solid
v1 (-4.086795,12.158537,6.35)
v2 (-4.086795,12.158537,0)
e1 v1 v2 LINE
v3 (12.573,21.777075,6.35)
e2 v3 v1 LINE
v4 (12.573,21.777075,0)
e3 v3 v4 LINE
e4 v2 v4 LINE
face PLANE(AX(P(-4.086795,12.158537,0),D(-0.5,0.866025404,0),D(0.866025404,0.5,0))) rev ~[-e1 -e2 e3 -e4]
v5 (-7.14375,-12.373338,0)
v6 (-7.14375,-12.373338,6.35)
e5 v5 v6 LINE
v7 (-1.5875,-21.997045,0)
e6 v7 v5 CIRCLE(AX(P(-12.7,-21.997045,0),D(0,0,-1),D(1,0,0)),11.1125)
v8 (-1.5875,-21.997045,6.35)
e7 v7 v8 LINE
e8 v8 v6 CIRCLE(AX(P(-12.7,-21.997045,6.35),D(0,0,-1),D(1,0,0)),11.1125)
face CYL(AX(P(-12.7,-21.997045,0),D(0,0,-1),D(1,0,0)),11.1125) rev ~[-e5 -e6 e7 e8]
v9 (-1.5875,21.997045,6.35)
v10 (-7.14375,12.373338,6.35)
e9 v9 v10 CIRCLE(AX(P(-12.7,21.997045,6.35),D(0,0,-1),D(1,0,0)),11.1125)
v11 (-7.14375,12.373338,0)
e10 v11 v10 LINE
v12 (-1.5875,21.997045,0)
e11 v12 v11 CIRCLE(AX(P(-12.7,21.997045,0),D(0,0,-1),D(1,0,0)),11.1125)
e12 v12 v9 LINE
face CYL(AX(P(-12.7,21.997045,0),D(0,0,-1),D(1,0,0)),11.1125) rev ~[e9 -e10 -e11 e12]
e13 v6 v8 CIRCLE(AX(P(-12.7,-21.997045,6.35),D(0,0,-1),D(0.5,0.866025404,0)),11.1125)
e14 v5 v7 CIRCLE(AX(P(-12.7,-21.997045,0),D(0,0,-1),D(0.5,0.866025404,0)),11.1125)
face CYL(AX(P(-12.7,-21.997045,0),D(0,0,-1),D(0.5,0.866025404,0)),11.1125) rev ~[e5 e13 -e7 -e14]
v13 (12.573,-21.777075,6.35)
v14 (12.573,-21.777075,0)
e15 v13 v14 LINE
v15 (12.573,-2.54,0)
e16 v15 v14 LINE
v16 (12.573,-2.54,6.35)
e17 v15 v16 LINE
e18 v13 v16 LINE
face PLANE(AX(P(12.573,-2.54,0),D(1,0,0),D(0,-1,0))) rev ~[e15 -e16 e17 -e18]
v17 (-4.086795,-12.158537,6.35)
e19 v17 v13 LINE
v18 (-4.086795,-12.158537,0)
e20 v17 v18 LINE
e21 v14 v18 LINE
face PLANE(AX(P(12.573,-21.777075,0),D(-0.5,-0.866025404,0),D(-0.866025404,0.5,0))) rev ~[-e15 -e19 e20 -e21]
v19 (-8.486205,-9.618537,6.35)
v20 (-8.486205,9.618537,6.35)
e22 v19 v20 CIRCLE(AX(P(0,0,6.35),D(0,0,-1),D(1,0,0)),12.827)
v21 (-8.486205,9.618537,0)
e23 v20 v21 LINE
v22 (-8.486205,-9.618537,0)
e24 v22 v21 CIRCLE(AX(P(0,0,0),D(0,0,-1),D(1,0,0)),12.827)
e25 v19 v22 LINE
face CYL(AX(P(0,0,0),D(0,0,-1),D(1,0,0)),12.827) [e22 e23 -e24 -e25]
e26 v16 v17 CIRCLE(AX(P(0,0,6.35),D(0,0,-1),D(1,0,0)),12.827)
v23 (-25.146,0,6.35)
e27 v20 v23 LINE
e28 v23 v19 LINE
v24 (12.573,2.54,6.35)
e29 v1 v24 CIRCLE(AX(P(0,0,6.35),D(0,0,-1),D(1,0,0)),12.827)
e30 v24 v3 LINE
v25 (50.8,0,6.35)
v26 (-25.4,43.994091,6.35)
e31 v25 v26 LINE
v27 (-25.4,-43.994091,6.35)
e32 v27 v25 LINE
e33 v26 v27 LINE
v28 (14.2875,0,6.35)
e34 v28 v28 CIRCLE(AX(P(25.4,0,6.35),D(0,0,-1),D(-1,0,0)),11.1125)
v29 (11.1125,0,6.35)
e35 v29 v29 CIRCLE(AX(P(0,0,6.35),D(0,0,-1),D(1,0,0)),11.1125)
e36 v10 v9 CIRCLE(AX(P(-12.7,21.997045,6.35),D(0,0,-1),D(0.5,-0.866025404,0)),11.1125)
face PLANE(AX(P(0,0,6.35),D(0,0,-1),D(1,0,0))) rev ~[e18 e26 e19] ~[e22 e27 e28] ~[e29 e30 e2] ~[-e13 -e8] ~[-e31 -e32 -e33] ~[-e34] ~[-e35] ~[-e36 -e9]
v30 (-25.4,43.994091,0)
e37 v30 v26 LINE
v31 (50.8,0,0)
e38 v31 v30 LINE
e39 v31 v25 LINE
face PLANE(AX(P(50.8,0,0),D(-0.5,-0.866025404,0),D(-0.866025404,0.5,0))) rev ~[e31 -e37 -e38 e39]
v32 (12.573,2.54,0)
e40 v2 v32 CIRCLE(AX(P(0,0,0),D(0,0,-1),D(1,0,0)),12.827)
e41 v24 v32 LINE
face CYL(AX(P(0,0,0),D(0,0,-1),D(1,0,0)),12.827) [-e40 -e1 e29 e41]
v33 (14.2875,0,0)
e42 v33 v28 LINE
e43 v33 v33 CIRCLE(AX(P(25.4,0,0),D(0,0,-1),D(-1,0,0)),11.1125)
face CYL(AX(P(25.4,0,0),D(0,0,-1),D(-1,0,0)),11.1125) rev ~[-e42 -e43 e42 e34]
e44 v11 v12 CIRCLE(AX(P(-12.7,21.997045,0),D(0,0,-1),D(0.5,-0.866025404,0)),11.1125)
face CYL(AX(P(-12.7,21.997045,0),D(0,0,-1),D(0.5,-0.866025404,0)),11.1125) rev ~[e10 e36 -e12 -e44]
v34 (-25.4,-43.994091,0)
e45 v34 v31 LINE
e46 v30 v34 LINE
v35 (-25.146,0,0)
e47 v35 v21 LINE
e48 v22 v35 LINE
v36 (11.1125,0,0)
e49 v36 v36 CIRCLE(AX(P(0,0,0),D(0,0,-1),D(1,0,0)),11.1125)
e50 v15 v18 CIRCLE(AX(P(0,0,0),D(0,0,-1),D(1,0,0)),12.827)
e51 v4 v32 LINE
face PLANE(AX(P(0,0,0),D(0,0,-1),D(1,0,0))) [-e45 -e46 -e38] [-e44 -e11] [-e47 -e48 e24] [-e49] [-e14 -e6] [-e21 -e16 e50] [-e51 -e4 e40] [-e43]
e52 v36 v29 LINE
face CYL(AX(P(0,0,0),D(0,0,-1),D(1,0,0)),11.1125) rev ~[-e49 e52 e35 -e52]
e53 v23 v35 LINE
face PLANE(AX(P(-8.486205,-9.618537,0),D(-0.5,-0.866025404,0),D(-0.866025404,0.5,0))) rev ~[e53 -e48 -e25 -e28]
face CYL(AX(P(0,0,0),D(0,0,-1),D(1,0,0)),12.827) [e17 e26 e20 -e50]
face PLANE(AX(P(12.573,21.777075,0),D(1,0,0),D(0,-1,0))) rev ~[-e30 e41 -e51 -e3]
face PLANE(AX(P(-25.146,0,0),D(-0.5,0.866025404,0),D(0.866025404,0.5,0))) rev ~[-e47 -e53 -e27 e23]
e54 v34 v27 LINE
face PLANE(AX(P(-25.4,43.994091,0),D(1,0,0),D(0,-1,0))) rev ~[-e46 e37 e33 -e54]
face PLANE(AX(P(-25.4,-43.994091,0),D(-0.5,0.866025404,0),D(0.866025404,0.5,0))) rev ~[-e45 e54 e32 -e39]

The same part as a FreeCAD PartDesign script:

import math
import FreeCAD as App
import Part
import Sketcher
Q = App.Units.Quantity

doc = App.newDocument("Part")
body = doc.addObject("PartDesign::Body", "Body")

# Sketch on XY plane
sketch1 = body.newObject("Sketcher::SketchObject", "Sketch")
sketch1.AttachmentSupport = (doc.getObject("XY_Plane"), [""])
sketch1.MapMode = "FlatFace"
sketch1.addGeometry([
    Part.LineSegment(App.Vector(51, 0, 0), App.Vector(-25, 44, 0)),  # 0
    Part.LineSegment(App.Vector(-25, 44, 0), App.Vector(-25, -44, 0)),  # 1
    Part.LineSegment(App.Vector(-25, -44, 0), App.Vector(51, 0, 0)),  # 2
    Part.ArcOfCircle(Part.Circle(App.Vector(-13, -22, 0), App.Vector(0, 0, 1), 11), math.radians(0), math.radians(60)),  # 3
    Part.ArcOfCircle(Part.Circle(App.Vector(-13, -22, 0), App.Vector(0, 0, 1), 11), math.radians(60), math.radians(360)),  # 4
    Part.ArcOfCircle(Part.Circle(App.Vector(0, 0, 0), App.Vector(0, 0, 1), 11), math.radians(0), math.radians(120)),  # 5
    Part.ArcOfCircle(Part.Circle(App.Vector(0, 0, 0), App.Vector(0, 0, 1), 11), math.radians(-120), math.radians(0)),  # 6
    Part.ArcOfCircle(Part.Circle(App.Vector(0, 0, 0), App.Vector(0, 0, 1), 11), math.radians(120), math.radians(240)),  # 7
    Part.Circle(App.Vector(25, 0, 0), App.Vector(0, 0, 1), 11),  # 8
    Part.ArcOfCircle(Part.Circle(App.Vector(-13, 22, 0), App.Vector(0, 0, 1), 11), math.radians(0), math.radians(300)),  # 9
    Part.ArcOfCircle(Part.Circle(App.Vector(-13, 22, 0), App.Vector(0, 0, 1), 11), math.radians(-60), math.radians(0)),  # 10
], False)
sketch1.addConstraint([
    Sketcher.Constraint("Coincident", 0, 2, 1, 1),
    Sketcher.Constraint("Coincident", 1, 2, 2, 1),
    Sketcher.Constraint("Coincident", 2, 2, 0, 1),
    Sketcher.Constraint("Tangent", 3, 1, 4, 2),
    Sketcher.Constraint("Coincident", 4, 1, 3, 2),
    Sketcher.Constraint("Tangent", 5, 1, 6, 2),
    Sketcher.Constraint("Tangent", 6, 1, 7, 2),
    Sketcher.Constraint("Tangent", 7, 1, 5, 2),
    Sketcher.Constraint("Tangent", 9, 1, 10, 2),
    Sketcher.Constraint("Coincident", 10, 1, 9, 2),
    Sketcher.Constraint("Vertical", 1),
    Sketcher.Constraint("Coincident", 5, 3, -1, 1),
    Sketcher.Constraint("Equal", 4, 5),
    Sketcher.Constraint("Equal", 7, 8),
    Sketcher.Constraint("Equal", 8, 9),
    Sketcher.Constraint("Symmetric", 3, 3, 9, 3, -1),
    Sketcher.Constraint("PointOnObject", 8, 3, -1),
    Sketcher.Constraint("PointOnObject", 2, 2, -1),
    Sketcher.Constraint("PointOnObject", 5, 1, -1),
    Sketcher.Constraint("Horizontal", 4, 3, 3, 1),
    Sketcher.Constraint("Horizontal", 10, 3, 9, 1),
    Sketcher.Constraint("Vertical", 6, 1, 7, 1),
    Sketcher.Constraint("Vertical", 4, 1, 10, 1),
    Sketcher.Constraint("Equal", 0, 2),
    Sketcher.Constraint("Diameter", 8, Q("0.875 in")),
    Sketcher.Constraint("DistanceX", -1, 1, 8, 3, Q("1 in")),
    Sketcher.Constraint("DistanceX", 0, 2, -1, 1, Q("1 in")),
    Sketcher.Constraint("DistanceX", -1, 1, 2, 2, Q("2 in")),
    Sketcher.Constraint("Angle", 0, Q("150 deg")),
    Sketcher.Constraint("DistanceX", 3, 3, -1, 1, Q("0.5 in")),
    Sketcher.Constraint("DistanceX", 4, 1, -1, 1, Q("0.28125 in")),
    Sketcher.Constraint("DistanceX", 6, 1, -1, 1, Q("0.21875 in")),
    Sketcher.Constraint("DistanceY", 3, 3, 9, 3, Q("43.994091 mm")),
])
pad1 = body.newObject("PartDesign::Pad", "Pad")
pad1.Profile = sketch1
pad1.Length = Q("0.25 in")

# Sketch on XY plane
sketch2 = body.newObject("Sketcher::SketchObject", "Sketch001")
sketch2.AttachmentSupport = (doc.getObject("XY_Plane"), [""])
sketch2.MapMode = "FlatFace"
sketch2.AttachmentOffset = App.Placement(App.Vector(0, 0, 0.25 * 25.4), App.Rotation())
sketch2.addGeometry([
    Part.LineSegment(App.Vector(13, -22, 0), App.Vector(13, 22, 0)),  # 0
    Part.LineSegment(App.Vector(13, 22, 0), App.Vector(-25, 0, 0)),  # 1
    Part.LineSegment(App.Vector(-25, 0, 0), App.Vector(13, -22, 0)),  # 2
    Part.LineSegment(App.Vector(11, -20, 0), App.Vector(-23, 0, 0)),  # 3
    Part.LineSegment(App.Vector(-23, 0, 0), App.Vector(11, 20, 0)),  # 4
    Part.LineSegment(App.Vector(11, 20, 0), App.Vector(11, -20, 0)),  # 5
], False)
sketch2.addConstraint([
    Sketcher.Constraint("Coincident", 0, 2, 1, 1),
    Sketcher.Constraint("Coincident", 1, 2, 2, 1),
    Sketcher.Constraint("Coincident", 2, 2, 0, 1),
    Sketcher.Constraint("Coincident", 3, 2, 4, 1),
    Sketcher.Constraint("Coincident", 4, 2, 5, 1),
    Sketcher.Constraint("Coincident", 5, 2, 3, 1),
    Sketcher.Constraint("Vertical", 0),
    Sketcher.Constraint("Vertical", 5),
    Sketcher.Constraint("PointOnObject", 1, 2, -1),
    Sketcher.Constraint("PointOnObject", 3, 2, -1),
    Sketcher.Constraint("Parallel", 2, 3),
    Sketcher.Constraint("Parallel", 1, 4),
    Sketcher.Constraint("Equal", 1, 2),
    Sketcher.Constraint("Angle", 1, Q("-150 deg")),
    Sketcher.Constraint("DistanceX", 1, 2, -1, 1, Q("0.99 in")),
    Sketcher.Constraint("DistanceX", -1, 1, 0, 2, Q("0.495 in")),
    Sketcher.Constraint("DistanceY", 5, 2, 5, 1, Q("39.62383 mm")),
    Sketcher.Constraint("DistanceX", 3, 2, -1, 1, Q("22.876829 mm")),
])
pocket1 = body.newObject("PartDesign::Pocket", "Pocket")
pocket1.Profile = sketch2
pocket1.Length = Q("0.05 in")

# Sketch on XY plane
sketch3 = body.newObject("Sketcher::SketchObject", "Sketch002")
sketch3.AttachmentSupport = (doc.getObject("XY_Plane"), [""])
sketch3.MapMode = "FlatFace"
sketch3.addGeometry([
    Part.LineSegment(App.Vector(12.6, -2.5, 0), App.Vector(12.6, -21.8, 0)),  # 0
    Part.LineSegment(App.Vector(12.6, -21.8, 0), App.Vector(-4.1, -12.2, 0)),  # 1
    Part.ArcOfCircle(Part.Circle(App.Vector(0, 0, 0), App.Vector(0, 0, 1), 12.8), math.radians(-131), math.radians(-109)),  # 2
    Part.LineSegment(App.Vector(-8.5, -9.6, 0), App.Vector(-25.1, 0, 0)),  # 3
    Part.LineSegment(App.Vector(-25.1, 0, 0), App.Vector(-8.5, 9.6, 0)),  # 4
    Part.ArcOfCircle(Part.Circle(App.Vector(0, 0, 0), App.Vector(0, 0, 1), 12.8), math.radians(109), math.radians(131)),  # 5
    Part.LineSegment(App.Vector(-4.1, 12.2, 0), App.Vector(12.6, 21.8, 0)),  # 6
    Part.LineSegment(App.Vector(12.6, 21.8, 0), App.Vector(12.6, 2.5, 0)),  # 7
    Part.ArcOfCircle(Part.Circle(App.Vector(0, 0, 0), App.Vector(0, 0, 1), 12.8), math.radians(0), math.radians(11.42)),  # 8
    Part.ArcOfCircle(Part.Circle(App.Vector(0, 0, 0), App.Vector(0, 0, 1), 12.8), math.radians(-11.42), math.radians(0)),  # 9
], False)
sketch3.addConstraint([
    Sketcher.Constraint("Coincident", 0, 2, 1, 1),
    Sketcher.Constraint("Coincident", 1, 2, 2, 2),
    Sketcher.Constraint("Coincident", 2, 1, 3, 1),
    Sketcher.Constraint("Coincident", 3, 2, 4, 1),
    Sketcher.Constraint("Coincident", 4, 2, 5, 2),
    Sketcher.Constraint("Coincident", 5, 1, 6, 1),
    Sketcher.Constraint("Coincident", 6, 2, 7, 1),
    Sketcher.Constraint("Coincident", 7, 2, 8, 2),
    Sketcher.Constraint("Tangent", 8, 1, 9, 2),
    Sketcher.Constraint("Coincident", 9, 1, 0, 1),
    Sketcher.Constraint("Vertical", 0),
    Sketcher.Constraint("Vertical", 7),
    Sketcher.Constraint("Coincident", 2, 3, -1, 1),
    Sketcher.Constraint("Coincident", 5, 3, -1, 1),
    Sketcher.Constraint("Coincident", 8, 3, -1, 1),
    Sketcher.Constraint("Equal", 2, 5),
    Sketcher.Constraint("Equal", 5, 8),
    Sketcher.Constraint("Equal", 8, 9),
    Sketcher.Constraint("Symmetric", 0, 2, 6, 2, -1),
    Sketcher.Constraint("PointOnObject", 3, 2, -1),
    Sketcher.Constraint("PointOnObject", 8, 1, -1),
    Sketcher.Constraint("Parallel", 1, 3),
    Sketcher.Constraint("Parallel", 4, 6),
    Sketcher.Constraint("Vertical", 2, 1, 4, 2),
    Sketcher.Constraint("Equal", 1, 3),
    Sketcher.Constraint("Angle", 1, Q("150 deg")),
    Sketcher.Constraint("Radius", 2, Q("0.505 in")),
    Sketcher.Constraint("DistanceY", -1, 1, 7, 2, Q("0.1 in")),
    Sketcher.Constraint("DistanceY", 1, 2, 2, 1, Q("0.1 in")),
])
pocket2 = body.newObject("PartDesign::Pocket", "Pocket001")
pocket2.Profile = sketch3
pocket2.Length = Q("0.25 in")
pocket2.Reversed = True

# Sketch on XY plane
sketch4 = body.newObject("Sketcher::SketchObject", "Sketch003")
sketch4.AttachmentSupport = (doc.getObject("XY_Plane"), [""])
sketch4.MapMode = "FlatFace"
sketch4.addGeometry([
    Part.Circle(App.Vector(0, 0, 0), App.Vector(0, 0, 1), 13),
    Part.Circle(App.Vector(0, 0, 0), App.Vector(0, 0, 1), 11),
], False)
sketch4.addConstraint([
    Sketcher.Constraint("Coincident", 0, 3, -1, 1),
    Sketcher.Constraint("Coincident", 1, 3, -1, 1),
    Sketcher.Constraint("Diameter", 0, Q("1.01 in")),
    Sketcher.Constraint("Diameter", 1, Q("0.875 in")),
])
pad2 = body.newObject("PartDesign::Pad", "Pad001")
pad2.Profile = sketch4
pad2.Length = Q("0.25 in")

doc.recompute()
